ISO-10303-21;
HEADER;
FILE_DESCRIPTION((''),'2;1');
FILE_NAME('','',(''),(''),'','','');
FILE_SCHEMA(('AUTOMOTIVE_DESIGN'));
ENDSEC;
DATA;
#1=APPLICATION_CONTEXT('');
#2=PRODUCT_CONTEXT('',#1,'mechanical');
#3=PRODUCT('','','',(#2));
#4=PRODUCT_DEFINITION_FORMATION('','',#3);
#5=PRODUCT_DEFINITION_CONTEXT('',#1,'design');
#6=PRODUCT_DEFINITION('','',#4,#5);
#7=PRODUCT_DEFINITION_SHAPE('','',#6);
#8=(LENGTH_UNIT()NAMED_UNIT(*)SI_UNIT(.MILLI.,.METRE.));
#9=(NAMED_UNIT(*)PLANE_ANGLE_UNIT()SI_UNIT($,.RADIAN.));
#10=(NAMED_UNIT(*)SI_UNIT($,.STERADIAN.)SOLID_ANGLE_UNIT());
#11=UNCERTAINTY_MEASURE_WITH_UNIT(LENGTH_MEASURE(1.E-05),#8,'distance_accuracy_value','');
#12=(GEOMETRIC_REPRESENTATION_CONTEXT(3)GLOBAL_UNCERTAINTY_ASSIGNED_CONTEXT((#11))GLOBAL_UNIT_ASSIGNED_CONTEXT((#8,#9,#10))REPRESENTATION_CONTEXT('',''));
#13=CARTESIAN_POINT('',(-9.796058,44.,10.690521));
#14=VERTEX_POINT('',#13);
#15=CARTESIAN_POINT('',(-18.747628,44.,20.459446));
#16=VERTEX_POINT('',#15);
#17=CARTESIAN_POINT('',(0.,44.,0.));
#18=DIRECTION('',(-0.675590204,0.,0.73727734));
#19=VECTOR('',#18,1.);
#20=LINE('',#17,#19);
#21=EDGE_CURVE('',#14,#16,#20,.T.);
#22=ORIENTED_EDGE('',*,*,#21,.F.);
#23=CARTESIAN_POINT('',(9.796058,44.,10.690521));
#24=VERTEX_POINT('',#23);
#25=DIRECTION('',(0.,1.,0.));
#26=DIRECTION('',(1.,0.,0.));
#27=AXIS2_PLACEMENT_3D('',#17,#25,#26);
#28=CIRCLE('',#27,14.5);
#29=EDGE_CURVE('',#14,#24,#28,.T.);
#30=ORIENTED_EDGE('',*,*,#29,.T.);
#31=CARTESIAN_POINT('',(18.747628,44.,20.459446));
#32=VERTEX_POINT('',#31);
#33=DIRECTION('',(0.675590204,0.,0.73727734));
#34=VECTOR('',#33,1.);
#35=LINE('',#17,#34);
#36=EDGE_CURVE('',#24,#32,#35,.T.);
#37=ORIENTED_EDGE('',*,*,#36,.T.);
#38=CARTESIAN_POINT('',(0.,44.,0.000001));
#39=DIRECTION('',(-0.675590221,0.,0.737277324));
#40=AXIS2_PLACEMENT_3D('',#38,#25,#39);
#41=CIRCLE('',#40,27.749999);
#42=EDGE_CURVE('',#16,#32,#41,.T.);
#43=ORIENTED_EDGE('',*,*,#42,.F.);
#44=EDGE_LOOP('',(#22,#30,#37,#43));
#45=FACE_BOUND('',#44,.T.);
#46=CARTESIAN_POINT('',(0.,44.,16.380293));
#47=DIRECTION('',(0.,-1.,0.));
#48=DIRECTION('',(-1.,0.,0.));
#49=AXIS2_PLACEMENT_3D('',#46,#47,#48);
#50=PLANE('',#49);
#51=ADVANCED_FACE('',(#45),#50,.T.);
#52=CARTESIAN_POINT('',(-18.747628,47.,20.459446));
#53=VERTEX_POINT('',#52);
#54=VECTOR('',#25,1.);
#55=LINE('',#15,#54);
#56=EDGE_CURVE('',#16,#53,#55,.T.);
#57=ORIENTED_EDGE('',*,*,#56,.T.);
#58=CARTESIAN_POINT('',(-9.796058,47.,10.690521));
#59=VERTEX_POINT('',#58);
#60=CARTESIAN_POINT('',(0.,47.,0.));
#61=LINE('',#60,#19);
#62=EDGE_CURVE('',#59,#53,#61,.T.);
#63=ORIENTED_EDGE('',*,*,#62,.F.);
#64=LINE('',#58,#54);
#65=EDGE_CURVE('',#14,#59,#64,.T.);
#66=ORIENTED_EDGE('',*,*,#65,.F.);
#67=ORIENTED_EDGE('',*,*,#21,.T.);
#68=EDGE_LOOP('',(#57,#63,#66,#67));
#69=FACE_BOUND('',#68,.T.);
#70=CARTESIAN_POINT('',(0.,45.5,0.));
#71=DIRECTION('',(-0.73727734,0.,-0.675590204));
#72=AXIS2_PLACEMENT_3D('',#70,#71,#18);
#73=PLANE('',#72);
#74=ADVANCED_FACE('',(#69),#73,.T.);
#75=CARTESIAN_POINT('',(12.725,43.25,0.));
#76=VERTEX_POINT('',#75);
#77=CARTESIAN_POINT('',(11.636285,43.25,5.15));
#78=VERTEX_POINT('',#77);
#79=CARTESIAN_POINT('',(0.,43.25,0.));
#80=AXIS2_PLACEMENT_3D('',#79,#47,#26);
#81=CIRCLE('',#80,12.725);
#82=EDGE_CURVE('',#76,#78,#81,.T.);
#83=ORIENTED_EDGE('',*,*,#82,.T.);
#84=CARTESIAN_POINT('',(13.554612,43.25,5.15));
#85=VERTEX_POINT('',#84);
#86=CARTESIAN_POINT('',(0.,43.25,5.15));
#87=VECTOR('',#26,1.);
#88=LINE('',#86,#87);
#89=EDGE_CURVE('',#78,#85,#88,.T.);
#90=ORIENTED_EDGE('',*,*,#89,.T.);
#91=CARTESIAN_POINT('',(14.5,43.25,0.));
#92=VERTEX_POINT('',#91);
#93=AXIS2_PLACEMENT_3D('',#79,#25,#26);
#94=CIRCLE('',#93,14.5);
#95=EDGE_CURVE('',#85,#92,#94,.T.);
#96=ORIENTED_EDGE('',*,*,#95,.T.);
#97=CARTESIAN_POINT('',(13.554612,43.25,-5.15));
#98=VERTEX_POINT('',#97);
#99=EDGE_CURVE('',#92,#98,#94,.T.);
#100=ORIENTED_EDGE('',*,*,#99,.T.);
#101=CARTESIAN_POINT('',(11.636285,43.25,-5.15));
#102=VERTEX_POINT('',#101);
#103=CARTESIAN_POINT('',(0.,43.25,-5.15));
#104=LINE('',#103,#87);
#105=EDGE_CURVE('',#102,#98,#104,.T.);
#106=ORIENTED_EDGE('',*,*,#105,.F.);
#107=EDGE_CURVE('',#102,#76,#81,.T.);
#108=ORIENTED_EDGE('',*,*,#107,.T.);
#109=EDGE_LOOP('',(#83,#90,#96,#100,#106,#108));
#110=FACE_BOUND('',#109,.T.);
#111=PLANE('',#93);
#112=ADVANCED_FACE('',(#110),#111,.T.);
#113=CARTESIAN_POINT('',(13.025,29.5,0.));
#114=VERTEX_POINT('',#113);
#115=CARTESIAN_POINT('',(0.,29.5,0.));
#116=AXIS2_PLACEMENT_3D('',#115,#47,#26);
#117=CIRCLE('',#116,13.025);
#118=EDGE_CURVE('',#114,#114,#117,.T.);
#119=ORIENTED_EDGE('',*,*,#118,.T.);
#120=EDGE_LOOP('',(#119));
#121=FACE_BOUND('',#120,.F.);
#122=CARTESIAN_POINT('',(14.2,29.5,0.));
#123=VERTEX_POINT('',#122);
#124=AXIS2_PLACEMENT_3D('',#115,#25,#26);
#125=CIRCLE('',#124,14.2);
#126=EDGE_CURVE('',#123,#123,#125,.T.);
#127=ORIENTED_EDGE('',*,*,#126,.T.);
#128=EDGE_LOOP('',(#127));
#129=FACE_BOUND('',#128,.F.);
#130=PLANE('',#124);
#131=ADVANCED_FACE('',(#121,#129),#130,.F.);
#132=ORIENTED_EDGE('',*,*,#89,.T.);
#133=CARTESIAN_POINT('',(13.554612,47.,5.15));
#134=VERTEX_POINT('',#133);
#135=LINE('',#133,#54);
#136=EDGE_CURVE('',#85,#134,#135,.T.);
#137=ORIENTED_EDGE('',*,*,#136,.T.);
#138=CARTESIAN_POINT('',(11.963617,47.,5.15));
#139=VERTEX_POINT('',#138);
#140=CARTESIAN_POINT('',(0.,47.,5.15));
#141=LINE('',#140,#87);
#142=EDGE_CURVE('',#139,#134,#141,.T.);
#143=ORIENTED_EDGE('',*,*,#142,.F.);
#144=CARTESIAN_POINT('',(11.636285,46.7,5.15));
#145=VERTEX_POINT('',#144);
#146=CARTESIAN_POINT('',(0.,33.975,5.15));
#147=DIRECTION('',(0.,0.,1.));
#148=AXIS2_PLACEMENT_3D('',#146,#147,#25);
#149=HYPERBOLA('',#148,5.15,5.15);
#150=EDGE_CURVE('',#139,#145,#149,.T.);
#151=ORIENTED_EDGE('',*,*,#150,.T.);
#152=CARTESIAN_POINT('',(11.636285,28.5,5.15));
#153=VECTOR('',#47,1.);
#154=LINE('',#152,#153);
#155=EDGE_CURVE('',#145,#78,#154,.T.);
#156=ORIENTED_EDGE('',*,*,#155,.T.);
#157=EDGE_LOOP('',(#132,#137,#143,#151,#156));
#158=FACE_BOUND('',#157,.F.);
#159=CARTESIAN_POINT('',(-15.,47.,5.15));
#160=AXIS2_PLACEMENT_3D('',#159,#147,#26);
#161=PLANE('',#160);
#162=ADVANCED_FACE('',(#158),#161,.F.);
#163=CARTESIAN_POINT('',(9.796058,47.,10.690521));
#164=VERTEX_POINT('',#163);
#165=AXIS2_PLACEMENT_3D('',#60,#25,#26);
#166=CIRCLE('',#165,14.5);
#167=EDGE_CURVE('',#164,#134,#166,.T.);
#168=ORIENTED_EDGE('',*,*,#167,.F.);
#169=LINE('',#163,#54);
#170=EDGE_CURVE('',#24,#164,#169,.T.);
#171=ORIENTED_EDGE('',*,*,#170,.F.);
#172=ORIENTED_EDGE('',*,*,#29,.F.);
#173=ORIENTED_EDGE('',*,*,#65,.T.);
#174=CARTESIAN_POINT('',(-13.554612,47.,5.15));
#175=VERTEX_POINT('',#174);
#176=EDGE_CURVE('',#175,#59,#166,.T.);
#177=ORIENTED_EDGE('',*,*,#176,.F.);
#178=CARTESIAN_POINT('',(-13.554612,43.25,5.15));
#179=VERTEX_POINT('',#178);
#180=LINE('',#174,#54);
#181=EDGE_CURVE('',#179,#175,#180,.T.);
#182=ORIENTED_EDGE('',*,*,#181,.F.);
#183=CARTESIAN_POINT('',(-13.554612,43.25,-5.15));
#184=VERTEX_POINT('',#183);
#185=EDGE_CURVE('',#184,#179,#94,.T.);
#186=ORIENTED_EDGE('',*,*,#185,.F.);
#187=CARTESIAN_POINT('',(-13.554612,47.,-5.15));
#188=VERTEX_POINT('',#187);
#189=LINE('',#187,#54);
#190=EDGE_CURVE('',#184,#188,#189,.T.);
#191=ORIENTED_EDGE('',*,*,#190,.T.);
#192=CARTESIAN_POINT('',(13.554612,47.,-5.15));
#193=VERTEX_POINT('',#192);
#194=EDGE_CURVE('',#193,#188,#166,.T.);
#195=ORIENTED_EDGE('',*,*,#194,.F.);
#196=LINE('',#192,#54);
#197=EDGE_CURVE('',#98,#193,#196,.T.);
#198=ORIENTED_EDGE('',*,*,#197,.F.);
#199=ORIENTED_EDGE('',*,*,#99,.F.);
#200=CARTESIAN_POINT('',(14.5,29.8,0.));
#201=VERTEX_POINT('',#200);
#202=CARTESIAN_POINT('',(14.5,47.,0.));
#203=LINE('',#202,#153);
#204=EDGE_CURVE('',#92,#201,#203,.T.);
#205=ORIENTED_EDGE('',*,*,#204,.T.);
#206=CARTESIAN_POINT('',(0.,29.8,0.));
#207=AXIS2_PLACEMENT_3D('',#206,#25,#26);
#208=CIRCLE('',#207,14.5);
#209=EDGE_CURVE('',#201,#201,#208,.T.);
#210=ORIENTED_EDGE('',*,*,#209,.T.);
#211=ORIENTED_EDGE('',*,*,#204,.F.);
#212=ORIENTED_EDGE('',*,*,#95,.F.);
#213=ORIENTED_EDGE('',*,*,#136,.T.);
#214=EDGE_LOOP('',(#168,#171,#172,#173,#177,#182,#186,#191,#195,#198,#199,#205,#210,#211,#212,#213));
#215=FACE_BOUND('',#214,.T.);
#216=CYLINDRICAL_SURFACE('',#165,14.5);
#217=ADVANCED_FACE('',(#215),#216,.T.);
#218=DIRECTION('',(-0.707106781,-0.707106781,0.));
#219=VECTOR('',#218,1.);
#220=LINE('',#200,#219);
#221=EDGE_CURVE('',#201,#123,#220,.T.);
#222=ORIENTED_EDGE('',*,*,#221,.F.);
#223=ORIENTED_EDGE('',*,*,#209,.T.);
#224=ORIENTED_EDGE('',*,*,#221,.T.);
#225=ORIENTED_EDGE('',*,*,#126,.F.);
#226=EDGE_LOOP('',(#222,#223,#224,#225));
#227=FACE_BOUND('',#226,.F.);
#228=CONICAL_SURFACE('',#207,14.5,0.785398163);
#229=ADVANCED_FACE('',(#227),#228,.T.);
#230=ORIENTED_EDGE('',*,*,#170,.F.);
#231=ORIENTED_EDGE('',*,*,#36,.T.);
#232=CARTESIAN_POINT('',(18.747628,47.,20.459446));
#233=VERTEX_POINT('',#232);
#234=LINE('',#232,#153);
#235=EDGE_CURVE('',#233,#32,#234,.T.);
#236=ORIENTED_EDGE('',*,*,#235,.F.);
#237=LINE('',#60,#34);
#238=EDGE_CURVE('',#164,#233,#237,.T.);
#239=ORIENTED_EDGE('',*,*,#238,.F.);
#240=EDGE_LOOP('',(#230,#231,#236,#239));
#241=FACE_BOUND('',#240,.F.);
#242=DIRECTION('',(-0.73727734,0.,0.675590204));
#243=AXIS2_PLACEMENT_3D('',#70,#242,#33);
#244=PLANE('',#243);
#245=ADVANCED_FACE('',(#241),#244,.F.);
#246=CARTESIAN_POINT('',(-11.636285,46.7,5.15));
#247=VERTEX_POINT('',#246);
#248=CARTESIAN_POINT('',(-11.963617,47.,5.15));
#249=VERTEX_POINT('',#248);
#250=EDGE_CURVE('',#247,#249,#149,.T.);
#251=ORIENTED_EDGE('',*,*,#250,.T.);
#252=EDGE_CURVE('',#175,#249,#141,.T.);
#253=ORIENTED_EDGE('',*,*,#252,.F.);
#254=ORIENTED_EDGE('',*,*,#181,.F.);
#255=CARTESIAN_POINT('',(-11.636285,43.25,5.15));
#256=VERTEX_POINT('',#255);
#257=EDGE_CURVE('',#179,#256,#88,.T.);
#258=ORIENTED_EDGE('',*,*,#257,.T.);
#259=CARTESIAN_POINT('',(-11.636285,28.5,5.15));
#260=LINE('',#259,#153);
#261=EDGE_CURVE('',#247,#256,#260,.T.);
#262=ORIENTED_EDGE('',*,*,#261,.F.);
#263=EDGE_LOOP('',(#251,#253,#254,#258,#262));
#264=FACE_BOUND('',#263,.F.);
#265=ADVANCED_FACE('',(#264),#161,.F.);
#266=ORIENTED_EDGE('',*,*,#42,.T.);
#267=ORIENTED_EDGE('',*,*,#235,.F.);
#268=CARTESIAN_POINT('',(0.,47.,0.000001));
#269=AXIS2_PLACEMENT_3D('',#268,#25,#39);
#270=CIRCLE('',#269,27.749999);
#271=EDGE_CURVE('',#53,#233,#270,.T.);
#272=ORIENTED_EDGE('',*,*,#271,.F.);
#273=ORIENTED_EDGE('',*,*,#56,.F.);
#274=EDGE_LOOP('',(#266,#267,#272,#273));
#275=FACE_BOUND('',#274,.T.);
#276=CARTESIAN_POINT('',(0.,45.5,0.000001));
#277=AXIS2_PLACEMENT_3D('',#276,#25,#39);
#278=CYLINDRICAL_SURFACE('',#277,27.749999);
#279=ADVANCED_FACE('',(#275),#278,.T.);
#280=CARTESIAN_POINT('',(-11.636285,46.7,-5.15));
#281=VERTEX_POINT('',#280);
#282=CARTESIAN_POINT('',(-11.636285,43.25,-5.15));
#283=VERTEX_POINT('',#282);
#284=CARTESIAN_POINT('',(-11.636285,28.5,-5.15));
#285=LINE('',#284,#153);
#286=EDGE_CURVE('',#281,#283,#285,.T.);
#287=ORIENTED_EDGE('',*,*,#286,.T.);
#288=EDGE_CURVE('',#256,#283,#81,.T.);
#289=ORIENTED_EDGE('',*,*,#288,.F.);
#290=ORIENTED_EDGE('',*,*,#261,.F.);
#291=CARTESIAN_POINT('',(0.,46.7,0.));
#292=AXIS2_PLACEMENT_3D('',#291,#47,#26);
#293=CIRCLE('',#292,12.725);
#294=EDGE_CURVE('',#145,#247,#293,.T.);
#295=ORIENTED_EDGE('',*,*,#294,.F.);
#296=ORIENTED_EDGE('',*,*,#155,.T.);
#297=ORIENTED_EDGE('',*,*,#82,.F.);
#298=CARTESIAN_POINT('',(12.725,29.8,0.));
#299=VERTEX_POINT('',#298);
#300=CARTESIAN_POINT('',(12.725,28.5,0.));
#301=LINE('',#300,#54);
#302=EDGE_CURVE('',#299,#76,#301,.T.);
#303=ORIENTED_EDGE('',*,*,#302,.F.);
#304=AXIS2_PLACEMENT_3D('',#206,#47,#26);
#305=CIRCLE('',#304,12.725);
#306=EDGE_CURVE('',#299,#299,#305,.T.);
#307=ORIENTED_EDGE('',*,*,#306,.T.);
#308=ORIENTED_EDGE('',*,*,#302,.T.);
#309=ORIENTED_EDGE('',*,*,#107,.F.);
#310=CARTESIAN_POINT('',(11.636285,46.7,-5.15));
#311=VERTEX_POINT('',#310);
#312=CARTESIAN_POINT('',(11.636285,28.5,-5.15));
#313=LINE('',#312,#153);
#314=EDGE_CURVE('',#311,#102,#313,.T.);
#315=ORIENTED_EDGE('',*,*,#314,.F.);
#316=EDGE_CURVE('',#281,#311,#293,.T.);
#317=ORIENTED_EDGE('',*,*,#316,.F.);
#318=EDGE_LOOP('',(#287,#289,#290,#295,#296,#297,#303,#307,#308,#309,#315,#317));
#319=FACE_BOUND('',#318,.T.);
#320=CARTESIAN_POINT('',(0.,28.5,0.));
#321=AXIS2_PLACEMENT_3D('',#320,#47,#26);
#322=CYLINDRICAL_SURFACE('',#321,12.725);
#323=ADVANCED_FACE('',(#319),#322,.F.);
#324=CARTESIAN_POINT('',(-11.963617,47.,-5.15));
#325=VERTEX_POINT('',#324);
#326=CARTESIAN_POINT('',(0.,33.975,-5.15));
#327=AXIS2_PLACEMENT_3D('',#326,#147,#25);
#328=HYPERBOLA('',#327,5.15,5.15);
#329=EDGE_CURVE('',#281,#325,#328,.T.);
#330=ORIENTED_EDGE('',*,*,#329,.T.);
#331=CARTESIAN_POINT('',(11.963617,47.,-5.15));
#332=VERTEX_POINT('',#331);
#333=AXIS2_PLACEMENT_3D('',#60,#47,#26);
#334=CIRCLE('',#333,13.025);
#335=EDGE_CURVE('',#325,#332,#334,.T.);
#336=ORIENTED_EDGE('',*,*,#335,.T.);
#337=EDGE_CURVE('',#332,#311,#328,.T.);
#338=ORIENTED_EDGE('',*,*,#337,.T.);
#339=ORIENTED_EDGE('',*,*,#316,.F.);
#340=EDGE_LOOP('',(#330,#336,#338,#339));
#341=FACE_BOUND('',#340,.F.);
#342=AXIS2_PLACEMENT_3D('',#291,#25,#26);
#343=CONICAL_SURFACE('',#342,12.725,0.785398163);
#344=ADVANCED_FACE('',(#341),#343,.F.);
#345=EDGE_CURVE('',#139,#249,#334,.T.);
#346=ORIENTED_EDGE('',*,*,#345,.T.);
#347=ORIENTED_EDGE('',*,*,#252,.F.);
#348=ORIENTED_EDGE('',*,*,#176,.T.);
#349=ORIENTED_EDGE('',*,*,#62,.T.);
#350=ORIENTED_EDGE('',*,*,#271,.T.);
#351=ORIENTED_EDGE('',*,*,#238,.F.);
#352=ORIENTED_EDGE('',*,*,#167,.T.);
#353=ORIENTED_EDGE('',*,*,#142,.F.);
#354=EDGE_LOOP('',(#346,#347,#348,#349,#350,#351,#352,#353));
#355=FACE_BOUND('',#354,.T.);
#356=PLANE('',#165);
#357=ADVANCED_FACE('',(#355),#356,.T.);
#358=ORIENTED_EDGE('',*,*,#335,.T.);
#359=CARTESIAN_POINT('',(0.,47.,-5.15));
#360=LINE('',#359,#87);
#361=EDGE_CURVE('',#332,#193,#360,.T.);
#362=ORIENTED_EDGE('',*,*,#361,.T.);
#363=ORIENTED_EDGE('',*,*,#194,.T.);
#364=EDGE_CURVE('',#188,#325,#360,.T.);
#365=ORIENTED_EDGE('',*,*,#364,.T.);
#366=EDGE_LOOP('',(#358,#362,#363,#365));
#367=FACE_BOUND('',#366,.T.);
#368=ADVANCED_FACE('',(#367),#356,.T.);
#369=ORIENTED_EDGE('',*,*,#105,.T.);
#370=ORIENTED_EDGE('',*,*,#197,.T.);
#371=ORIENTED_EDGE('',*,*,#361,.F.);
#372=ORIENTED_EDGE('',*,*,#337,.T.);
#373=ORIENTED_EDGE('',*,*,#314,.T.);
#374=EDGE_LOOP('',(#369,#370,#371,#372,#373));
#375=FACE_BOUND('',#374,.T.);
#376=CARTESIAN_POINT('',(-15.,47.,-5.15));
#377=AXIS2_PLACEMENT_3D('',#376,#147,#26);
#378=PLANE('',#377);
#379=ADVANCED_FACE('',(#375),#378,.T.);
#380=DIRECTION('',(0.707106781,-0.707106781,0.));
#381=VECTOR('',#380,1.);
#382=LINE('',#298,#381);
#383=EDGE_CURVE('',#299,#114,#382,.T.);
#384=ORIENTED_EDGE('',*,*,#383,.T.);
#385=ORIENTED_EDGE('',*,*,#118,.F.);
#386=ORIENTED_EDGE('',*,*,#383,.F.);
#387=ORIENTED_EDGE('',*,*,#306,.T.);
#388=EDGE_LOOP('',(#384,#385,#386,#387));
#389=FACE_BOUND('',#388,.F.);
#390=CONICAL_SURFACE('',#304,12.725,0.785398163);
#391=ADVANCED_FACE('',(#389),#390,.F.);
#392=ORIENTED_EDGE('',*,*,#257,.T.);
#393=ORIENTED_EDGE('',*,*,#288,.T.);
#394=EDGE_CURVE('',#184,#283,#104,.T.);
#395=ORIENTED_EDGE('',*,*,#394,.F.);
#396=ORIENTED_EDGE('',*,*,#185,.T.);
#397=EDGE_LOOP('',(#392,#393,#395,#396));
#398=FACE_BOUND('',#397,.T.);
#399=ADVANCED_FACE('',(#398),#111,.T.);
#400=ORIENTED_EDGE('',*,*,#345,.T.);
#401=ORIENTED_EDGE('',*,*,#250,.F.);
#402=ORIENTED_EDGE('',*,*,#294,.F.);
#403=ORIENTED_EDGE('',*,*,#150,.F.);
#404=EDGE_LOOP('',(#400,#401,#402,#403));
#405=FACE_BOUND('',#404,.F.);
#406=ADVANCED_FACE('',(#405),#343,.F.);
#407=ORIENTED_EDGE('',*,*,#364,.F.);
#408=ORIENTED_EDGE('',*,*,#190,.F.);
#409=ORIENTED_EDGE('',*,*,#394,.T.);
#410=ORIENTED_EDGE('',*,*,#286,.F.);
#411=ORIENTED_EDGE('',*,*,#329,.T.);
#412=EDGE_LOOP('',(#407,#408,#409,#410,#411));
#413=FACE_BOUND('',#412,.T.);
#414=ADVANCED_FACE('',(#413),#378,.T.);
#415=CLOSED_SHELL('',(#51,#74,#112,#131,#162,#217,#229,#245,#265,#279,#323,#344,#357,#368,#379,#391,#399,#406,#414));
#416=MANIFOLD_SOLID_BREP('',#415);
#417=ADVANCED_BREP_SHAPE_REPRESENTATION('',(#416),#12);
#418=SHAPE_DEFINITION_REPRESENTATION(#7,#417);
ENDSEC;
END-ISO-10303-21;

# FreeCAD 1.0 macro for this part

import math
import FreeCAD as App
import Part
import Sketcher

V = App.Vector
Q = App.Units.Quantity


def edges_at(feature, points):
    """Names of the edges that pass closest to the given points."""
    edges = feature.Shape.Edges
    near = lambda p: min(range(len(edges)), key=lambda i: edges[i].distToShape(Part.Vertex(*p))[0])
    return sorted({f"Edge{near(p) + 1}" for p in points})

doc = App.newDocument("Part")
body = doc.addObject("PartDesign::Body", "Body")

# Sketch on XY plane
sketch1 = doc.addObject("Sketcher::SketchObject", "Sketch")
body.addObject(sketch1)
sketch1.AttachmentSupport = (doc.XY_Plane, [""])
sketch1.MapMode = "FlatFace"
sketch1.AttachmentOffset = App.Placement(V(0, 0, 18.5), App.Rotation())
sketch1.addGeometry(Part.Circle(V(0, 0, 0), V(0, 0, 1), 14), False)
sketch1.addConstraint([
    Sketcher.Constraint("Coincident", 0, 3, -1, 1),
    Sketcher.Constraint("Diameter", 0, Q("29 mm")),
])
pad1 = doc.addObject("PartDesign::Pad", "Pad")
body.addObject(pad1)
pad1.Profile = sketch1
pad1.Length = 17.5
pad1.Reversed = True

# Sketch on XY plane
sketch2 = doc.addObject("Sketcher::SketchObject", "Sketch001")
body.addObject(sketch2)
sketch2.AttachmentSupport = (doc.XY_Plane, [""])
sketch2.MapMode = "FlatFace"
sketch2.AttachmentOffset = App.Placement(V(0, 0, 17), App.Rotation())
sketch2.addGeometry([
    Part.LineSegment(V(19, -20, 0), V(0, 0, 0)),
    Part.LineSegment(V(0, 0, 0), V(-19, -20, 0)),
    Part.ArcOfCircle(Part.Circle(V(0, 0, 0), V(0, 0, 1), 28), math.radians(-133), math.radians(-47)),
], False)
sketch2.addConstraint([
    Sketcher.Constraint("Coincident", 0, 2, 1, 1),
    Sketcher.Constraint("Coincident", 1, 2, 2, 1),
    Sketcher.Constraint("Coincident", 2, 2, 0, 1),
    Sketcher.Constraint("Coincident", 2, 3, -1, 1),
    Sketcher.Constraint("Coincident", 0, 2, -1, 1),
    Sketcher.Constraint("Horizontal", 1, 2, 2, 2),
    Sketcher.Constraint("Radius", 2, Q("27.749999 mm")),
    Sketcher.Constraint("Angle", 0, Q("132.5 deg")),
])
pad2 = doc.addObject("PartDesign::Pad", "Pad001")
body.addObject(pad2)
pad2.Profile = sketch2
pad2.Length = 3
pad2.Midplane = True

# Sketch on XY plane
sketch3 = doc.addObject("Sketcher::SketchObject", "Sketch002")
body.addObject(sketch3)
sketch3.AttachmentSupport = (doc.XY_Plane, [""])
sketch3.MapMode = "FlatFace"
sketch3.addGeometry(Part.Circle(V(0, 0, 0), V(0, 0, 1), 13), False)
sketch3.addConstraint([
    Sketcher.Constraint("Coincident", 0, 3, -1, 1),
    Sketcher.Constraint("Diameter", 0, Q("25.45 mm")),
])
pocket1 = doc.addObject("PartDesign::Pocket", "Pocket")
body.addObject(pocket1)
pocket1.Profile = sketch3
pocket1.Type = "ThroughAll"
pocket1.Reversed = True
doc.recompute()

chamfer = doc.addObject("PartDesign::Chamfer", "Chamfer")
body.addObject(chamfer)
chamfer.Base = (pocket1, edges_at(pocket1, [(-12.725, 0, 1), (-14.5, 0, 1)]))
chamfer.Size = 0.3
doc.recompute()

chamfer2 = doc.addObject("PartDesign::Chamfer", "Chamfer001")
body.addObject(chamfer2)
chamfer2.Base = (chamfer, edges_at(chamfer, [(-12.725, 0, 18.5)]))
chamfer2.Size = 0.3

# Sketch on XY plane
sketch4 = doc.addObject("Sketcher::SketchObject", "Sketch003")
body.addObject(sketch4)
sketch4.AttachmentSupport = (doc.XY_Plane, [""])
sketch4.MapMode = "FlatFace"
sketch4.AttachmentOffset = App.Placement(V(0, 0, 18.5), App.Rotation())
sketch4.addGeometry([
    Part.LineSegment(V(-15, 5, 0), V(-15, -5, 0)),
    Part.LineSegment(V(-15, -5, 0), V(15, -5, 0)),
    Part.LineSegment(V(15, -5, 0), V(15, 5, 0)),
    Part.LineSegment(V(15, 5, 0), V(-15, 5, 0)),
], False)
sketch4.addConstraint([
    Sketcher.Constraint("Coincident", 0, 2, 1, 1),
    Sketcher.Constraint("Coincident", 1, 2, 2, 1),
    Sketcher.Constraint("Coincident", 2, 2, 3, 1),
    Sketcher.Constraint("Coincident", 3, 2, 0, 1),
    Sketcher.Constraint("Vertical", 0),
    Sketcher.Constraint("Horizontal", 1),
    Sketcher.Constraint("Vertical", 2),
    Sketcher.Constraint("Horizontal", 3),
    Sketcher.Constraint("Symmetric", 0, 2, 2, 2, -1, 1),
    Sketcher.Constraint("DistanceX", 1, 1, 1, 2, Q("30 mm")),
    Sketcher.Constraint("DistanceY", 0, 2, 0, 1, Q("10.3 mm")),
])
pocket2 = doc.addObject("PartDesign::Pocket", "Pocket001")
body.addObject(pocket2)
pocket2.Profile = sketch4
pocket2.Length = 3.75
body2 = doc.addObject("PartDesign::Body", "Body001")
doc.recompute()

body.Placement = App.Placement(V(0, 28.5, 0), App.Rotation(V(-1, 0, 0), 90))
boolean = doc.addObject("PartDesign::Boolean", "Boolean")
body2.addObject(boolean)
boolean.Type = "Fuse"
boolean.addObjects([body])

doc.recompute()
